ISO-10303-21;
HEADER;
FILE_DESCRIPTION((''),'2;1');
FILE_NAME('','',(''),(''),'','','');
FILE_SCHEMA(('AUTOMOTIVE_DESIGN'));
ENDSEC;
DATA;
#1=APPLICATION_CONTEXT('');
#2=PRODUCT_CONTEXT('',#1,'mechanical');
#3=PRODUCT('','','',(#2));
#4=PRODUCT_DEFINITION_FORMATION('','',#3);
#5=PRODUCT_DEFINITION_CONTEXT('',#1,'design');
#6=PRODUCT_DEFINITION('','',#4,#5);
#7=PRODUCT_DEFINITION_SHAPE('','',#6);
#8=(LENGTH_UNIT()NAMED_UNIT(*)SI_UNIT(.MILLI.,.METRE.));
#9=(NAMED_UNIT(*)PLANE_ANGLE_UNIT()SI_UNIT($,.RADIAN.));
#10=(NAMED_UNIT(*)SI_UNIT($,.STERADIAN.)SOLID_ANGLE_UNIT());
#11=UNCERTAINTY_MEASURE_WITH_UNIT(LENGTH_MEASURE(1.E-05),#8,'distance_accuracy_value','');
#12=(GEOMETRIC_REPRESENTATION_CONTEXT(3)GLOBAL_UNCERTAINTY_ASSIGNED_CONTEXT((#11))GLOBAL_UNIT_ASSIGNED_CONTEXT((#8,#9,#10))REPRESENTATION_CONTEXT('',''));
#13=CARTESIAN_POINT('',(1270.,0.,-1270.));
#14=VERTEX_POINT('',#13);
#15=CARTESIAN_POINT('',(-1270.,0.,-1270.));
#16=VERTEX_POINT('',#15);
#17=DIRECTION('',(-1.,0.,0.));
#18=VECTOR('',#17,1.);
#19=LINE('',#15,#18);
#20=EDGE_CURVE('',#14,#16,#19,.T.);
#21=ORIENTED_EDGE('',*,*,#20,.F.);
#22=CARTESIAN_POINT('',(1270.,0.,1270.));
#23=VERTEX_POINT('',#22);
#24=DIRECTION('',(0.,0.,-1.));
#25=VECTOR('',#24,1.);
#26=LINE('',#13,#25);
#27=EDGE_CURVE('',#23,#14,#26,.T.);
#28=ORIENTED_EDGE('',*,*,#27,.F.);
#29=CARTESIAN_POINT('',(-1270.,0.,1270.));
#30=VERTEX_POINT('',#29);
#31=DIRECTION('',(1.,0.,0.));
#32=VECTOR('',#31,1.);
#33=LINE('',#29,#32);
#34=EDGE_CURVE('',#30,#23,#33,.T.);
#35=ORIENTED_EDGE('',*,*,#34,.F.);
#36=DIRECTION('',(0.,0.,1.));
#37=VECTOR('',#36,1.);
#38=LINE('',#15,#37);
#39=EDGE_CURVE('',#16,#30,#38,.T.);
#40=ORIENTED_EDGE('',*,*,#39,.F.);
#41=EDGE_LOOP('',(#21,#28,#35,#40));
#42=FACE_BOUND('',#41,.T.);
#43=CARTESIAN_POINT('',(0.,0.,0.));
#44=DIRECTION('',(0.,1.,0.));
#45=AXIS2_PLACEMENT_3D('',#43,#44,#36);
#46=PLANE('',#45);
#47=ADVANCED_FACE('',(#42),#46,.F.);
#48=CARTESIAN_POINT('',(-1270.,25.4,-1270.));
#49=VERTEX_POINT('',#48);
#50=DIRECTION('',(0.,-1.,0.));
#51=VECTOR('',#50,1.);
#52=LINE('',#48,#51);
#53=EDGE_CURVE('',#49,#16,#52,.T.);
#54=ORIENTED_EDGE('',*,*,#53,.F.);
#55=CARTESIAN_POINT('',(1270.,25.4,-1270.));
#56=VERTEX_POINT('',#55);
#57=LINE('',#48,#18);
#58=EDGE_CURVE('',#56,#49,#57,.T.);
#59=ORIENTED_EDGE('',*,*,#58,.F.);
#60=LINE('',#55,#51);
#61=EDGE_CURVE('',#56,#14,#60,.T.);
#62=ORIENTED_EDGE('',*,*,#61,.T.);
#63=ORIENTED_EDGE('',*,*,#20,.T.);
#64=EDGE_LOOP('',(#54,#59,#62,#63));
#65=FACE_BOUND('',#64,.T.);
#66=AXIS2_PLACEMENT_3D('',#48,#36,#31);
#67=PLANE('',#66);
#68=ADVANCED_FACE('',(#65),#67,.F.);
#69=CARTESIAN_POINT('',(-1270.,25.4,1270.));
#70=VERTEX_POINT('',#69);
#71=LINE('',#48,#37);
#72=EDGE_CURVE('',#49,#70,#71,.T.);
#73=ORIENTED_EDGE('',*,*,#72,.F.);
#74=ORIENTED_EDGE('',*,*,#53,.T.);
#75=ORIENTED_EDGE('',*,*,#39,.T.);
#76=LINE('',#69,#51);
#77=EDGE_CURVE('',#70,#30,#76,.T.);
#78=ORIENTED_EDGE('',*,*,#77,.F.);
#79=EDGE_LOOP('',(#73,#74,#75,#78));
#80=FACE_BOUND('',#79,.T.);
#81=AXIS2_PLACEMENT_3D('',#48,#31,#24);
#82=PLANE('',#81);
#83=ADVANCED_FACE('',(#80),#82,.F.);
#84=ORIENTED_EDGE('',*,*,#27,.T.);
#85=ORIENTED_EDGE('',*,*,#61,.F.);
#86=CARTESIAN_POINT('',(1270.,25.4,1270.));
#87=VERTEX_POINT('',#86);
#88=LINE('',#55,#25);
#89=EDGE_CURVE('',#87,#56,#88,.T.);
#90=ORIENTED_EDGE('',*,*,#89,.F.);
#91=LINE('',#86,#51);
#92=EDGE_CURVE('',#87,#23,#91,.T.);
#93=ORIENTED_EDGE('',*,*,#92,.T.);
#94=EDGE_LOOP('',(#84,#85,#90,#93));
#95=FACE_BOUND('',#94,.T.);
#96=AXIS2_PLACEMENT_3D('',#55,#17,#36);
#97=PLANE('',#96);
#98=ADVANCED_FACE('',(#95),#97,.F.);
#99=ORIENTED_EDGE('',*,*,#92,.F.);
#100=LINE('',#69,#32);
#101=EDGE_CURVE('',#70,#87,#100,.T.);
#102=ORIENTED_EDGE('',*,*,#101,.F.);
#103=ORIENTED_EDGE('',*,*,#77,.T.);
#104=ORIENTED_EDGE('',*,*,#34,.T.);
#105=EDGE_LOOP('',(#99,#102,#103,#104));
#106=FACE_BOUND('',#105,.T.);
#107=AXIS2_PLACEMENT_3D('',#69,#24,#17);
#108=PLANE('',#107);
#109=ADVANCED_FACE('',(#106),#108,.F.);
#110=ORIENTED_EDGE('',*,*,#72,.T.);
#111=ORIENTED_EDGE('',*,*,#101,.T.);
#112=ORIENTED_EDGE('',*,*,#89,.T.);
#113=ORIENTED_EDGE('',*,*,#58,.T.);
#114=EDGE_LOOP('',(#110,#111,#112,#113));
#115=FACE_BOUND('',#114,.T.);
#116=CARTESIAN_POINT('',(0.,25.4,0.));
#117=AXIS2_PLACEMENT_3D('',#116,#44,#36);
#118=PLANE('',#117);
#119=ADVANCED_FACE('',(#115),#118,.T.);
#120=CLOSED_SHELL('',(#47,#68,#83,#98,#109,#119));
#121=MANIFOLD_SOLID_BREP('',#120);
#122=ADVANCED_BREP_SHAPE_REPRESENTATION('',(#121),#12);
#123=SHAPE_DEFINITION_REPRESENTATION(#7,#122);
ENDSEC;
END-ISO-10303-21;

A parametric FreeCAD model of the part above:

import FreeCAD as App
import Part
import Sketcher
from FreeCAD import Vector
Q = App.Units.Quantity


def add_polygon(sketch, points):
    """Adds a closed chain of lines whose ends are joined by coincident constraints."""
    first, n = sketch.GeometryCount, len(points)
    for a, b in zip(points, points[1:] + points[:1]):
        sketch.addGeometry(Part.LineSegment(App.Vector(*a, 0), App.Vector(*b, 0)), False)
    for i in range(n):
        sketch.addConstraint(Sketcher.Constraint("Coincident", first + i, 2, first + (i + 1) % n, 1))

doc = App.newDocument("Part")
body = doc.addObject("PartDesign::Body", "Body")

# Sketch on XZ plane
sketch1 = doc.addObject("Sketcher::SketchObject", "Sketch")
body.addObject(sketch1)
sketch1.AttachmentSupport = (doc.XZ_Plane, [""])
sketch1.MapMode = "FlatFace"
add_polygon(sketch1, [(-1270, -1270), (-1270, 1270), (1270, 1270), (1270, -1270)])  # lines 0-3
sketch1.addConstraint([
    Sketcher.Constraint("Vertical", 0),
    Sketcher.Constraint("Horizontal", 1),
    Sketcher.Constraint("Vertical", 2),
    Sketcher.Constraint("Horizontal", 3),
    Sketcher.Constraint("Symmetric", 0, 2, 2, 2, -1, 1),
    Sketcher.Constraint("Equal", 3, 0),
    Sketcher.Constraint("DistanceX", 1, 1, 1, 2, Q("100 in")),
])
pad1 = doc.addObject("PartDesign::Pad", "Pad")
body.addObject(pad1)
pad1.Profile = sketch1
pad1.Length = Q("1 in")
pad1.Reversed = True

doc.recompute()
